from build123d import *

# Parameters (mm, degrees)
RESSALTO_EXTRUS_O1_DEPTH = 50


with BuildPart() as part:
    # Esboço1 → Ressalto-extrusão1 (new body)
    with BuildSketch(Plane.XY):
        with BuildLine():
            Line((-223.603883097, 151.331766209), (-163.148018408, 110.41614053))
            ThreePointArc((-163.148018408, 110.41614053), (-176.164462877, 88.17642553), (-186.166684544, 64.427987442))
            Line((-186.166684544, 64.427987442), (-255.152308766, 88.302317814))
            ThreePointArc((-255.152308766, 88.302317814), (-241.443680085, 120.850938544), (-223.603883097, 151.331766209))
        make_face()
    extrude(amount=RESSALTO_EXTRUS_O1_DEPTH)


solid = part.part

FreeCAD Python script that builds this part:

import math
import FreeCAD as App
import Part
import Sketcher
Q = App.Units.Quantity

doc = App.newDocument("Part")
body = doc.addObject("PartDesign::Body", "Body")

sketch1 = body.newObject("Sketcher::SketchObject", "Sketch")
sketch1.AttachmentSupport = (doc.getObject("XY_Plane"), [""])
sketch1.MapMode = "FlatFace"
sketch1.addGeometry([
    Part.LineSegment(App.Vector(-163, 110, 0), App.Vector(-224, 151, 0)),
    Part.ArcOfCircle(Part.Circle(App.Vector(0, 0, 0), App.Vector(0, 0, 1), 270), math.radians(145.91), math.radians(160.91)),
    Part.LineSegment(App.Vector(-255, 88, 0), App.Vector(-186, 64, 0)),
    Part.ArcOfCircle(Part.Circle(App.Vector(0, 0, 0), App.Vector(0, 0, 1), 197), math.radians(145.91), math.radians(160.91)),
], False)
sketch1.addConstraint([
    Sketcher.Constraint("Coincident", 0, 2, 1, 1),
    Sketcher.Constraint("Coincident", 1, 2, 2, 1),
    Sketcher.Constraint("Coincident", 2, 2, 3, 2),
    Sketcher.Constraint("Coincident", 3, 1, 0, 1),
    Sketcher.Constraint("Coincident", 1, 3, -1, 1),
    Sketcher.Constraint("Coincident", 3, 3, -1, 1),
    Sketcher.Constraint("Radius", 1, Q("270 mm")),
    Sketcher.Constraint("Radius", 3, Q("197 mm")),
    Sketcher.Constraint("DistanceX", 0, 2, 2, 2, Q("37.437199 mm")),
    Sketcher.Constraint("DistanceX", 1, 2, -1, 1, Q("255.152309 mm")),
    Sketcher.Constraint("DistanceX", 3, 1, -1, 1, Q("163.148018 mm")),
    Sketcher.Constraint("DistanceY", 2, 2, 1, 2, Q("23.87433 mm")),
])
pad1 = body.newObject("PartDesign::Pad", "Pad")
pad1.Profile = sketch1
pad1.Length = 50

doc.recompute()
